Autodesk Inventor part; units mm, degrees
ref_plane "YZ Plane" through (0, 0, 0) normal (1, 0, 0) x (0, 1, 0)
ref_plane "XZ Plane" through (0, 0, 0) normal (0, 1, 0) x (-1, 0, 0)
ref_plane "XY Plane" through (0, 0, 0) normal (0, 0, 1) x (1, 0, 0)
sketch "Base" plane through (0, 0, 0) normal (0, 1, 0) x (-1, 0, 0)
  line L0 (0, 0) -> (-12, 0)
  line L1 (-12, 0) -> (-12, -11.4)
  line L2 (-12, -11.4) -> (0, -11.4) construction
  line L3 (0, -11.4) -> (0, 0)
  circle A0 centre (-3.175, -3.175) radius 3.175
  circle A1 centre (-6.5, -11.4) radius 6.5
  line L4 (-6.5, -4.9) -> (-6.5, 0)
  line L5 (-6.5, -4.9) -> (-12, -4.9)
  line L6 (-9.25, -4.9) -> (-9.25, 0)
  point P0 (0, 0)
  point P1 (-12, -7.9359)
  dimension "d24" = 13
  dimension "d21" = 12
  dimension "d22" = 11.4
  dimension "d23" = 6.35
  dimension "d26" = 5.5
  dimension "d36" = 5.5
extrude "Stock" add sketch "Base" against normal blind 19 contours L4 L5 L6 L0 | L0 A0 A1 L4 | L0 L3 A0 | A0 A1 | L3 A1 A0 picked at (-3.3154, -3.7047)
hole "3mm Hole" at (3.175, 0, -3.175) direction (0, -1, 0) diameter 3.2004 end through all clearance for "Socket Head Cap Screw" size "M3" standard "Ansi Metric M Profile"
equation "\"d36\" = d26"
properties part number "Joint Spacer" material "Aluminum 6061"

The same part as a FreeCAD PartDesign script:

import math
import FreeCAD as App
import Part
import Sketcher

V = App.Vector
Q = App.Units.Quantity

doc = App.newDocument("Part")
params = doc.addObject("Spreadsheet::Sheet", "Params")
for row, (alias, value) in enumerate([
    ("sketch1_radius", "6.5 mm"),
    ("sketch1_height", "11.4 mm"),
    ("sketch1_width", "2.75 mm"),
    ("pad1_length", "19 mm"),
    ("hole_diameter", "3.2004 mm"),
], start=1):
    params.set(f"A{row}", alias)
    params.set(f"B{row}", "=" + value)
    params.setAlias(f"B{row}", alias)

body = doc.addObject("PartDesign::Body", "Body")

sketch1 = body.newObject("Sketcher::SketchObject", "Sketch")
sketch1.AttachmentSupport = (doc.getObject("XZ_Plane"), [""])
sketch1.MapMode = "FlatFace"
sketch1.addGeometry(Part.LineSegment(V(9.2, -4.9, 0), V(6.5, -4.9, 0)), False)
sketch1.addGeometry(Part.ArcOfCircle(Part.Circle(V(6.5, -11.4, 0), V(0, 0, 1), 6.5), math.radians(90), math.radians(180)), False)
sketch1.addGeometry(Part.LineSegment(V(0, -11.4, 0), V(0, 0, 0)), False)
sketch1.addGeometry(Part.LineSegment(V(0, 0, 0), V(9.2, 0, 0)), False)
sketch1.addGeometry(Part.LineSegment(V(9.2, 0, 0), V(9.2, -4.9, 0)), False)
sketch1.addConstraint(Sketcher.Constraint("Tangent", 0, 2, 1, 1))
sketch1.addConstraint(Sketcher.Constraint("Tangent", 1, 2, 2, 1))
sketch1.addConstraint(Sketcher.Constraint("Coincident", 2, 2, 3, 1))
sketch1.addConstraint(Sketcher.Constraint("Coincident", 3, 2, 4, 1))
sketch1.addConstraint(Sketcher.Constraint("Coincident", 4, 2, 0, 1))
sketch1.addConstraint(Sketcher.Constraint("Horizontal", 0))
sketch1.addConstraint(Sketcher.Constraint("Vertical", 2))
sketch1.addConstraint(Sketcher.Constraint("Horizontal", 3))
sketch1.addConstraint(Sketcher.Constraint("Vertical", 4))
sketch1.addConstraint(Sketcher.Constraint("Coincident", 2, 2, -1, 1))
sketch1.addConstraint(Sketcher.Constraint("Radius", 1, Q("6.5 mm")))
sketch1.addConstraint(Sketcher.Constraint("DistanceY", 2, 1, 2, 2, Q("11.4 mm")))
sketch1.addConstraint(Sketcher.Constraint("DistanceX", 0, 2, 0, 1, Q("2.75 mm")))
sketch1.setExpression("Constraints[10]", "Params.sketch1_radius")
sketch1.setExpression("Constraints[11]", "Params.sketch1_height")
sketch1.setExpression("Constraints[12]", "Params.sketch1_width")
pad1 = body.newObject("PartDesign::Pad", "Pad")
pad1.Profile = sketch1
pad1.setExpression("Length", "Params.pad1_length")

sketch2 = body.newObject("Sketcher::SketchObject", "Sketch001")
sketch2.AttachmentSupport = (doc.getObject("XZ_Plane"), [""])
sketch2.MapMode = "FlatFace"
sketch2.addGeometry(Part.Circle(V(3.2, -3.2, 0), V(0, 0, 1), 1.6), False)
sketch2.addConstraint(Sketcher.Constraint("Diameter", 0, Q("3.2004 mm")))
sketch2.addConstraint(Sketcher.Constraint("DistanceX", -1, 1, 0, 3, Q("3.175 mm")))
sketch2.addConstraint(Sketcher.Constraint("DistanceY", 0, 3, -1, 1, Q("3.175 mm")))
doc.recompute()
hole = body.newObject("PartDesign::Hole", "Hole")
hole.Profile = sketch2
hole.ThreadType = "None"
hole.setExpression("Diameter", "Params.hole_diameter")
hole.DepthType = "ThroughAll"
hole.Reversed = True

doc.recompute()
